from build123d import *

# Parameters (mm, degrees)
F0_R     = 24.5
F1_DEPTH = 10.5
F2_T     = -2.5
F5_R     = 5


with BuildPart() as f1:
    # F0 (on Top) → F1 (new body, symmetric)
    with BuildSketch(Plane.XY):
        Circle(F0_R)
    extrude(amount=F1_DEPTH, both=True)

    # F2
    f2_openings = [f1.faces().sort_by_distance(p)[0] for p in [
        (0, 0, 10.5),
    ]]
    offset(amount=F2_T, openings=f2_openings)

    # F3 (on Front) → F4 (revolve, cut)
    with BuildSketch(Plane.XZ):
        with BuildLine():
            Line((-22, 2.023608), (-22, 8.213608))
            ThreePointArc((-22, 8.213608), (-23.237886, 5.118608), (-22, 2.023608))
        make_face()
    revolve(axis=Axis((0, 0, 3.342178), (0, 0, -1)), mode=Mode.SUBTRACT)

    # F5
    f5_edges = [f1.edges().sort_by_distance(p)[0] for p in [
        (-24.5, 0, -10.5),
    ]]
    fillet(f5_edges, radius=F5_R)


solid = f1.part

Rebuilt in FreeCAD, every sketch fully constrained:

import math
import FreeCAD as App
import Part
import Sketcher

V = App.Vector
Q = App.Units.Quantity


def edges_at(feature, points):
    """Names of the edges that pass closest to the given points."""
    edges = feature.Shape.Edges
    near = lambda p: min(range(len(edges)), key=lambda i: edges[i].distToShape(Part.Vertex(*p))[0])
    return sorted({f"Edge{near(p) + 1}" for p in points})


def faces_at(feature, points):
    """Names of the faces that lie closest to the given points."""
    faces = feature.Shape.Faces
    near = lambda p: min(range(len(faces)), key=lambda i: faces[i].distToShape(Part.Vertex(*p))[0])
    return sorted({f"Face{near(p) + 1}" for p in points})

doc = App.newDocument("Part")
body = doc.addObject("PartDesign::Body", "Body")

# Sketch on XY plane
sketch1 = doc.addObject("Sketcher::SketchObject", "Sketch")
body.addObject(sketch1)
sketch1.AttachmentSupport = (doc.XY_Plane, [""])
sketch1.MapMode = "FlatFace"
sketch1.addGeometry(Part.Circle(V(0, 0, 0), V(0, 0, 1), 24), False)
sketch1.addConstraint([
    Sketcher.Constraint("Coincident", 0, 3, -1, 1),
    Sketcher.Constraint("Diameter", 0, Q("49 mm")),
])
pad1 = doc.addObject("PartDesign::Pad", "Pad")
body.addObject(pad1)
pad1.Profile = sketch1
pad1.Length = 21
pad1.Midplane = True
doc.recompute()

thickness = doc.addObject("PartDesign::Thickness", "Thickness")
body.addObject(thickness)
thickness.Base = (pad1, faces_at(pad1, [(0, 0, 10.5)]))
thickness.Value = 2.5
thickness.Reversed = True
thickness.Join = "Arc"

# Sketch on XZ plane
sketch2 = doc.addObject("Sketcher::SketchObject", "Sketch001")
body.addObject(sketch2)
sketch2.AttachmentSupport = (doc.XZ_Plane, [""])
sketch2.MapMode = "FlatFace"
sketch2.addGeometry([
    Part.LineSegment(V(-22, 2, 0), V(-22, 8.2, 0)),
    Part.ArcOfCircle(Part.Circle(V(-18.7, 5.1, 0), V(0, 0, 1), 4.5), math.radians(136), math.radians(224)),
], False)
sketch2.addConstraint([
    Sketcher.Constraint("Coincident", 0, 1, 1, 2),
    Sketcher.Constraint("Coincident", 1, 1, 0, 2),
    Sketcher.Constraint("Vertical", 0),
    Sketcher.Constraint("DistanceX", 0, 1, -1, 1, Q("22 mm")),
    Sketcher.Constraint("DistanceY", 0, 1, 0, 2, Q("6.19 mm")),
    Sketcher.Constraint("Radius", 1, Q("4.488049 mm")),
    Sketcher.Constraint("DistanceY", -1, 1, 1, 1, Q("8.213608 mm")),
])
groove = doc.addObject("PartDesign::Groove", "Groove")
body.addObject(groove)
groove.Profile = sketch2
groove.ReferenceAxis = (sketch2, ["V_Axis"])
groove.Angle = 360
doc.recompute()

fillet = doc.addObject("PartDesign::Fillet", "Fillet")
body.addObject(fillet)
fillet.Base = (groove, edges_at(groove, [(-24.5, 0, -10.5)]))
fillet.Radius = 5

doc.recompute()
